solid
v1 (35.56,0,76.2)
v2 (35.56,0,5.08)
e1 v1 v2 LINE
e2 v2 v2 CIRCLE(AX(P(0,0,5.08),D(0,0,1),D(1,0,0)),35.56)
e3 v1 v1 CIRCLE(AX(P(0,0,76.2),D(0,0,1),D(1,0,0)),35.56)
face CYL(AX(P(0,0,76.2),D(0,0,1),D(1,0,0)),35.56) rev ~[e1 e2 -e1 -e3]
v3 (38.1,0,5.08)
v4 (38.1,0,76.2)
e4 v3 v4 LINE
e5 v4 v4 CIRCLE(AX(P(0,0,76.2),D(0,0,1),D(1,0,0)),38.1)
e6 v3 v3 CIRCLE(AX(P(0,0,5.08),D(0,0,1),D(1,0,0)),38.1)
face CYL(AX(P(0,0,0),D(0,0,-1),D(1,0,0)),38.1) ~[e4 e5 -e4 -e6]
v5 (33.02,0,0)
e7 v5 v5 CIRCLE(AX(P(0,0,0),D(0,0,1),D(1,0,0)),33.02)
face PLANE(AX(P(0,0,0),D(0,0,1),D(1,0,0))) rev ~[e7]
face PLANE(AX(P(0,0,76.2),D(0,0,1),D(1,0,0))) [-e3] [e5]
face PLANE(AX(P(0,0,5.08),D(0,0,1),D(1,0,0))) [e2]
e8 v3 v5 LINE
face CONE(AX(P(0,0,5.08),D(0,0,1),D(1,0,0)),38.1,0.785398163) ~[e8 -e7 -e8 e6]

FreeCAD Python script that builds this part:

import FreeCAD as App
import Part
import Sketcher
from FreeCAD import Vector
Q = App.Units.Quantity


def edges_at(feature, points):
    """Names of the edges that pass closest to the given points."""
    edges = feature.Shape.Edges
    near = lambda p: min(range(len(edges)), key=lambda i: edges[i].distToShape(Part.Vertex(*p))[0])
    return sorted({f"Edge{near(p) + 1}" for p in points})

doc = App.newDocument("Part")
body = doc.addObject("PartDesign::Body", "Body")

sketch1 = body.newObject("Sketcher::SketchObject", "Sketch")
sketch1.AttachmentSupport = (doc.getObject("XY_Plane"), [""])
sketch1.MapMode = "FlatFace"
sketch1.addGeometry(Part.Circle(Vector(0, 0, 0), Vector(0, 0, 1), 38), False)
sketch1.addConstraint([
    Sketcher.Constraint("Coincident", 0, 3, -1, 1),
    Sketcher.Constraint("Diameter", 0, Q("3 in")),
])
pad1 = body.newObject("PartDesign::Pad", "Pad")
pad1.Profile = sketch1
pad1.Length = Q("3 in")

sketch2 = body.newObject("Sketcher::SketchObject", "Sketch001")
sketch2.AttachmentSupport = (doc.getObject("XY_Plane"), [""])
sketch2.MapMode = "FlatFace"
sketch2.AttachmentOffset = App.Placement(Vector(0, 0, 3 * 25.4), App.Rotation())
sketch2.addGeometry(Part.Circle(Vector(0, 0, 0), Vector(0, 0, 1), 36), False)
sketch2.addConstraint([
    Sketcher.Constraint("Coincident", 0, 3, -1, 1),
    Sketcher.Constraint("Diameter", 0, Q("2.8 in")),
])
pocket1 = body.newObject("PartDesign::Pocket", "Pocket")
pocket1.Profile = sketch2
pocket1.Length = Q("2.8 in")
doc.recompute()

chamfer = body.newObject("PartDesign::Chamfer", "Chamfer")
chamfer.Base = (pocket1, edges_at(pocket1, [(-38.1, 0, 0)]))
chamfer.Size = Q("0.2 in")

doc.recompute()
